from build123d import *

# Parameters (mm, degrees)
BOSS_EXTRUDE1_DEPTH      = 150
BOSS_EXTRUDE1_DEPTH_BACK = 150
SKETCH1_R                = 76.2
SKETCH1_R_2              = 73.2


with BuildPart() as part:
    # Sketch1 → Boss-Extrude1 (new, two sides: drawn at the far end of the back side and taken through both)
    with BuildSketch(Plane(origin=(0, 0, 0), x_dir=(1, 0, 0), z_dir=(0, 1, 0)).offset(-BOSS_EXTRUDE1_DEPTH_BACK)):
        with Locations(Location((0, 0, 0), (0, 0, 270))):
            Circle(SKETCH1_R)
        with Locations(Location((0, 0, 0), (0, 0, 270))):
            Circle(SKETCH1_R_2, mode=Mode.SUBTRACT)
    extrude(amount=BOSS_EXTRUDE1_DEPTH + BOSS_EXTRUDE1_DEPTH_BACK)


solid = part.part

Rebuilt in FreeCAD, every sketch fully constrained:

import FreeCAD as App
import Part
import Sketcher

V = App.Vector
Q = App.Units.Quantity

doc = App.newDocument("Part")
params = doc.addObject("Spreadsheet::Sheet", "Params")
for row, (alias, value) in enumerate([
    ("sketch1_diameter", "152.4 mm"),
    ("sketch1_diameter2", "146.4 mm"),
    ("pad1_length", "150 mm"),
    ("pad1_length2", "150 mm"),
], start=1):
    params.set(f"A{row}", alias)
    params.set(f"B{row}", "=" + value)
    params.setAlias(f"B{row}", alias)

body = doc.addObject("PartDesign::Body", "Body")

# Sketch on XZ plane
sketch1 = doc.addObject("Sketcher::SketchObject", "Sketch")
body.addObject(sketch1)
sketch1.AttachmentSupport = (doc.XZ_Plane, [""])
sketch1.MapMode = "FlatFace"
sketch1.addGeometry([
    Part.Circle(V(0, 0, 0), V(0, 0, 1), 76),
    Part.Circle(V(0, 0, 0), V(0, 0, 1), 73),
], False)
sketch1.addConstraint([
    Sketcher.Constraint("Coincident", 0, 3, -1, 1),
    Sketcher.Constraint("Coincident", 1, 3, -1, 1),
    Sketcher.Constraint("Diameter", 0, Q("152.4 mm")),
    Sketcher.Constraint("Diameter", 1, Q("146.4 mm")),
])
sketch1.setExpression("Constraints[2]", "Params.sketch1_diameter")
sketch1.setExpression("Constraints[3]", "Params.sketch1_diameter2")
pad1 = doc.addObject("PartDesign::Pad", "Pad")
body.addObject(pad1)
pad1.Profile = sketch1
pad1.Type = "TwoLengths"
pad1.setExpression("Length", "Params.pad1_length")
pad1.setExpression("Length2", "Params.pad1_length2")
pad1.Reversed = True

doc.recompute()
